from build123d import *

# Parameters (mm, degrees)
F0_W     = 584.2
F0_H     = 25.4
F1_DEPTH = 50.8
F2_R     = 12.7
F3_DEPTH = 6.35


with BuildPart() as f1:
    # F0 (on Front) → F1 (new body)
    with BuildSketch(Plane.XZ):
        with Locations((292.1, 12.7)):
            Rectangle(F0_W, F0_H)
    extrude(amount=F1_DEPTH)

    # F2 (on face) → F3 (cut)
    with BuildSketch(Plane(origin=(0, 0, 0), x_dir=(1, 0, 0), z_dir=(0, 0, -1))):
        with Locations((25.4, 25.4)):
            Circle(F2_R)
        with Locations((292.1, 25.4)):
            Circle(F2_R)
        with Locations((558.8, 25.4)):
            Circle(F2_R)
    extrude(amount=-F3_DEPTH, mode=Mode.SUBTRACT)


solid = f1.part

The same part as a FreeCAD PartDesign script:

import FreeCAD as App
import Part
import Sketcher

V = App.Vector
Q = App.Units.Quantity


def add_polygon(sketch, points):
    """Adds a closed chain of lines whose ends are joined by coincident constraints."""
    first, n = sketch.GeometryCount, len(points)
    for a, b in zip(points, points[1:] + points[:1]):
        sketch.addGeometry(Part.LineSegment(App.Vector(*a, 0), App.Vector(*b, 0)), False)
    for i in range(n):
        sketch.addConstraint(Sketcher.Constraint("Coincident", first + i, 2, first + (i + 1) % n, 1))

doc = App.newDocument("Part")
body = doc.addObject("PartDesign::Body", "Body")

# Sketch on XZ plane
sketch1 = body.newObject("Sketcher::SketchObject", "Sketch")
sketch1.AttachmentSupport = (doc.getObject("XZ_Plane"), [""])
sketch1.MapMode = "FlatFace"
add_polygon(sketch1, [(0, 25), (0, 0), (584, 0), (584, 25)])  # lines 0-3
sketch1.addConstraint(Sketcher.Constraint("Vertical", 0))
sketch1.addConstraint(Sketcher.Constraint("Horizontal", 1))
sketch1.addConstraint(Sketcher.Constraint("Vertical", 2))
sketch1.addConstraint(Sketcher.Constraint("Horizontal", 3))
sketch1.addConstraint(Sketcher.Constraint("Coincident", 0, 2, -1, 1))
sketch1.addConstraint(Sketcher.Constraint("DistanceX", 1, 1, 1, 2, Q("23 in")))
sketch1.addConstraint(Sketcher.Constraint("DistanceY", 0, 2, 0, 1, Q("1 in")))
pad1 = body.newObject("PartDesign::Pad", "Pad")
pad1.Profile = sketch1
pad1.Length = Q("2 in")

# Sketch on XY plane
sketch2 = body.newObject("Sketcher::SketchObject", "Sketch001")
sketch2.AttachmentSupport = (doc.getObject("XY_Plane"), [""])
sketch2.MapMode = "FlatFace"
sketch2.addGeometry(Part.Circle(V(25, -25, 0), V(0, 0, 1), 13), False)
sketch2.addGeometry(Part.Circle(V(292, -25, 0), V(0, 0, 1), 13), False)
sketch2.addGeometry(Part.Circle(V(559, -25, 0), V(0, 0, 1), 13), False)
sketch2.addConstraint(Sketcher.Constraint("Equal", 0, 1))
sketch2.addConstraint(Sketcher.Constraint("Equal", 1, 2))
sketch2.addConstraint(Sketcher.Constraint("Horizontal", 0, 3, 1, 3))
sketch2.addConstraint(Sketcher.Constraint("Horizontal", 1, 3, 2, 3))
sketch2.addConstraint(Sketcher.Constraint("Diameter", 0, Q("1 in")))
sketch2.addConstraint(Sketcher.Constraint("DistanceX", -1, 1, 0, 3, Q("1 in")))
sketch2.addConstraint(Sketcher.Constraint("DistanceY", 0, 3, -1, 1, Q("1 in")))
sketch2.addConstraint(Sketcher.Constraint("DistanceX", -1, 1, 2, 3, Q("22 in")))
sketch2.addConstraint(Sketcher.Constraint("DistanceX", -1, 1, 1, 3, Q("11.5 in")))
pocket1 = body.newObject("PartDesign::Pocket", "Pocket")
pocket1.Profile = sketch2
pocket1.Length = Q("0.25 in")
pocket1.Reversed = True

doc.recompute()
